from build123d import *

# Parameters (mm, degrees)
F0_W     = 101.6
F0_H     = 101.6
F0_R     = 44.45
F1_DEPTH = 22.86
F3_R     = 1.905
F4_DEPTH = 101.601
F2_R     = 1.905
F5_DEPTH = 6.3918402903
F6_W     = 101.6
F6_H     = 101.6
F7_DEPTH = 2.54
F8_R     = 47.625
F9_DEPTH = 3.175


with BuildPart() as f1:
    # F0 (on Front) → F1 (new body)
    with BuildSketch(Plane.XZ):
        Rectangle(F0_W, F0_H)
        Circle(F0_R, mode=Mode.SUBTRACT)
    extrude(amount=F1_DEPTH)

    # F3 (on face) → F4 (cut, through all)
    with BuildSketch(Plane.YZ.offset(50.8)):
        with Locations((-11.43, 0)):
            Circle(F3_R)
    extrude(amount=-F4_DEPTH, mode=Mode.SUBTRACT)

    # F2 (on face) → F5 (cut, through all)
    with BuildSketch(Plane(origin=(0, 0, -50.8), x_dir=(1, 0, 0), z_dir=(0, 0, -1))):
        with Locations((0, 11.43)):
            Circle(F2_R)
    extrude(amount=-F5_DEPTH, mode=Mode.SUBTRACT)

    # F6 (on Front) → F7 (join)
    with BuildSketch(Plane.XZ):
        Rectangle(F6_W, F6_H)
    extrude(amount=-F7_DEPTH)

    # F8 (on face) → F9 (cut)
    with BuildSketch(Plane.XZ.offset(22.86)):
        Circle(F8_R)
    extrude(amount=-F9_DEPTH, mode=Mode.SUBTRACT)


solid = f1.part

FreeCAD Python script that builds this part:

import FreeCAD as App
import Part
import Sketcher
from FreeCAD import Vector
Q = App.Units.Quantity

doc = App.newDocument("Part")
body = doc.addObject("PartDesign::Body", "Body")

# Sketch on XZ plane
sketch1 = body.newObject("Sketcher::SketchObject", "Sketch")
sketch1.AttachmentSupport = (doc.getObject("XZ_Plane"), [""])
sketch1.MapMode = "FlatFace"
sketch1.addGeometry([
    Part.LineSegment(Vector(-51, 51, 0), Vector(-51, -51, 0)),  # 0
    Part.LineSegment(Vector(-51, -51, 0), Vector(51, -51, 0)),  # 1
    Part.LineSegment(Vector(51, -51, 0), Vector(51, 51, 0)),  # 2
    Part.LineSegment(Vector(51, 51, 0), Vector(-51, 51, 0)),  # 3
    Part.Circle(Vector(0, 0, 0), Vector(0, 0, 1), 44),  # 4
], False)
sketch1.addConstraint([
    Sketcher.Constraint("Coincident", 0, 2, 1, 1),
    Sketcher.Constraint("Coincident", 1, 2, 2, 1),
    Sketcher.Constraint("Coincident", 2, 2, 3, 1),
    Sketcher.Constraint("Coincident", 3, 2, 0, 1),
    Sketcher.Constraint("Vertical", 0),
    Sketcher.Constraint("Horizontal", 1),
    Sketcher.Constraint("Vertical", 2),
    Sketcher.Constraint("Horizontal", 3),
    Sketcher.Constraint("Coincident", 4, 3, -1, 1),
    Sketcher.Constraint("Symmetric", 0, 2, 2, 2, -1, 1),
    Sketcher.Constraint("Equal", 3, 0),
    Sketcher.Constraint("Diameter", 4, Q("3.5 in")),
    Sketcher.Constraint("DistanceX", 1, 1, 1, 2, Q("4 in")),
])
pad1 = body.newObject("PartDesign::Pad", "Pad")
pad1.Profile = sketch1
pad1.Length = Q("0.9 in")

# Sketch on YZ plane
sketch2 = body.newObject("Sketcher::SketchObject", "Sketch001")
sketch2.AttachmentSupport = (doc.getObject("YZ_Plane"), [""])
sketch2.MapMode = "FlatFace"
sketch2.AttachmentOffset = App.Placement(Vector(0, 0, 2 * 25.4), App.Rotation())
sketch2.addGeometry(Part.Circle(Vector(-11.4, 0, 0), Vector(0, 0, 1), 1.9), False)
sketch2.addConstraint([
    Sketcher.Constraint("PointOnObject", 0, 3, -1),
    Sketcher.Constraint("Diameter", 0, Q("0.15 in")),
    Sketcher.Constraint("DistanceX", 0, 3, -1, 1, Q("0.45 in")),
])
pocket1 = body.newObject("PartDesign::Pocket", "Pocket")
pocket1.Profile = sketch2
pocket1.Type = "ThroughAll"

# Sketch on XY plane
sketch3 = body.newObject("Sketcher::SketchObject", "Sketch002")
sketch3.AttachmentSupport = (doc.getObject("XY_Plane"), [""])
sketch3.MapMode = "FlatFace"
sketch3.AttachmentOffset = App.Placement(Vector(0, 0, -2 * 25.4), App.Rotation())
sketch3.addGeometry(Part.Circle(Vector(0, -11.4, 0), Vector(0, 0, 1), 1.9), False)
sketch3.addConstraint([
    Sketcher.Constraint("PointOnObject", 0, 3, -2),
    Sketcher.Constraint("Diameter", 0, Q("0.15 in")),
    Sketcher.Constraint("DistanceY", 0, 3, -1, 1, Q("0.45 in")),
])
pocket2 = body.newObject("PartDesign::Pocket", "Pocket001")
pocket2.Profile = sketch3
pocket2.Length = 6.39184
pocket2.Reversed = True

# Sketch on XZ plane
sketch4 = body.newObject("Sketcher::SketchObject", "Sketch003")
sketch4.AttachmentSupport = (doc.getObject("XZ_Plane"), [""])
sketch4.MapMode = "FlatFace"
sketch4.addGeometry([
    Part.LineSegment(Vector(-51, 51, 0), Vector(-51, -51, 0)),
    Part.LineSegment(Vector(-51, -51, 0), Vector(51, -51, 0)),
    Part.LineSegment(Vector(51, -51, 0), Vector(51, 51, 0)),
    Part.LineSegment(Vector(51, 51, 0), Vector(-51, 51, 0)),
], False)
sketch4.addConstraint([
    Sketcher.Constraint("Coincident", 0, 2, 1, 1),
    Sketcher.Constraint("Coincident", 1, 2, 2, 1),
    Sketcher.Constraint("Coincident", 2, 2, 3, 1),
    Sketcher.Constraint("Coincident", 3, 2, 0, 1),
    Sketcher.Constraint("Vertical", 0),
    Sketcher.Constraint("Horizontal", 1),
    Sketcher.Constraint("Vertical", 2),
    Sketcher.Constraint("Horizontal", 3),
    Sketcher.Constraint("Symmetric", 0, 2, 2, 2, -1, 1),
    Sketcher.Constraint("Equal", 3, 0),
    Sketcher.Constraint("DistanceX", 1, 1, 1, 2, Q("4 in")),
])
pad2 = body.newObject("PartDesign::Pad", "Pad001")
pad2.Profile = sketch4
pad2.Length = Q("0.1 in")
pad2.Reversed = True

# Sketch on XZ plane
sketch5 = body.newObject("Sketcher::SketchObject", "Sketch004")
sketch5.AttachmentSupport = (doc.getObject("XZ_Plane"), [""])
sketch5.MapMode = "FlatFace"
sketch5.AttachmentOffset = App.Placement(Vector(0, 0, 0.9 * 25.4), App.Rotation())
sketch5.addGeometry(Part.Circle(Vector(0, 0, 0), Vector(0, 0, 1), 48), False)
sketch5.addConstraint([
    Sketcher.Constraint("Coincident", 0, 3, -1, 1),
    Sketcher.Constraint("Diameter", 0, Q("3.75 in")),
])
pocket3 = body.newObject("PartDesign::Pocket", "Pocket002")
pocket3.Profile = sketch5
pocket3.Length = Q("0.125 in")

doc.recompute()
